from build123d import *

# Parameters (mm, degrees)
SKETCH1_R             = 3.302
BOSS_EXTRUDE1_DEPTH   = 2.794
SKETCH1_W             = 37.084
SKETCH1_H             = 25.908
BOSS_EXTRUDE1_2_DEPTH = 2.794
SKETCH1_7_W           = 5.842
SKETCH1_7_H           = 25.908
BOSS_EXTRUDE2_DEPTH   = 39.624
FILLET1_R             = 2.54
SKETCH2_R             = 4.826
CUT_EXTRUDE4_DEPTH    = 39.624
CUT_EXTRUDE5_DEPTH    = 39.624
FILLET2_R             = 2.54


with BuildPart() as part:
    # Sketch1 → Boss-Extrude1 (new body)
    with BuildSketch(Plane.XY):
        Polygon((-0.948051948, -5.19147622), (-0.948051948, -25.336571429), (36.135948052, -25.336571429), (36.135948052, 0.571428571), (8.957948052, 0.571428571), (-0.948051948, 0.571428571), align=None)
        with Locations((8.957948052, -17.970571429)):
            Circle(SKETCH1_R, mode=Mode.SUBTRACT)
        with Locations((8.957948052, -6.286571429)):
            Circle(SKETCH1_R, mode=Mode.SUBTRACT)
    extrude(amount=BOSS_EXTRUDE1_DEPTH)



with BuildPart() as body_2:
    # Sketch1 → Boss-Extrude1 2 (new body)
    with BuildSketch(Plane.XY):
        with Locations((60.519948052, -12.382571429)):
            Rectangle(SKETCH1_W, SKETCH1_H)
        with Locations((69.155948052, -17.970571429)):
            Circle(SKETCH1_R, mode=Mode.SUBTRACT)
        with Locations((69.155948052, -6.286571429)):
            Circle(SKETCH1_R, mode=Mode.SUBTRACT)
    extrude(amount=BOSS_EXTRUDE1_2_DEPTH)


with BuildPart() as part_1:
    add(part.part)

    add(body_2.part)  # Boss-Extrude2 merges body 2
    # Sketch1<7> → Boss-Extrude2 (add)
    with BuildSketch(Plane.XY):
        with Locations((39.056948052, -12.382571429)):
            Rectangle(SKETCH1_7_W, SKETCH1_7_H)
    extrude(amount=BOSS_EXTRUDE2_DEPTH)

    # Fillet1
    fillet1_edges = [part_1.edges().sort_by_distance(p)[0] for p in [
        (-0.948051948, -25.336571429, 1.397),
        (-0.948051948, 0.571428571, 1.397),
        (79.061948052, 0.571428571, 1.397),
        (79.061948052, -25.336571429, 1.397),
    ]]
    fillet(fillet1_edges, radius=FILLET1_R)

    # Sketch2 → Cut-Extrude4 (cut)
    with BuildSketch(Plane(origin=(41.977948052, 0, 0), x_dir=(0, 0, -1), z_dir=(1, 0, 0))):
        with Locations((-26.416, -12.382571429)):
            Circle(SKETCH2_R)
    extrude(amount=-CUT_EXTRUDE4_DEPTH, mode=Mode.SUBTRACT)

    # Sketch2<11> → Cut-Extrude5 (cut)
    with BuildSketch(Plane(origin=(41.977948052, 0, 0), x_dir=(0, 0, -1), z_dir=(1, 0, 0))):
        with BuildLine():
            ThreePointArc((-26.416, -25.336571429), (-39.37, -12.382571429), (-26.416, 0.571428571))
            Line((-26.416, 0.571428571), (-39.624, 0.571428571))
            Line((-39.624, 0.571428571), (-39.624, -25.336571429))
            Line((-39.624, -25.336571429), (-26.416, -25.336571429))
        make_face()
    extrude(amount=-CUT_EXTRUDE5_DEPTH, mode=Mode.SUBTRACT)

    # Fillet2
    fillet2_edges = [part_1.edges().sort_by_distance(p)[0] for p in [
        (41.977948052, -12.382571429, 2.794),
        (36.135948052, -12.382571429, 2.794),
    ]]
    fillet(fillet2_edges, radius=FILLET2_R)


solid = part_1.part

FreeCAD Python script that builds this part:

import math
import FreeCAD as App
import Part
import Sketcher
from FreeCAD import Vector
Q = App.Units.Quantity


def edges_at(feature, points):
    """Names of the edges that pass closest to the given points."""
    edges = feature.Shape.Edges
    near = lambda p: min(range(len(edges)), key=lambda i: edges[i].distToShape(Part.Vertex(*p))[0])
    return sorted({f"Edge{near(p) + 1}" for p in points})


def add_polygon(sketch, points):
    """Adds a closed chain of lines whose ends are joined by coincident constraints."""
    first, n = sketch.GeometryCount, len(points)
    for a, b in zip(points, points[1:] + points[:1]):
        sketch.addGeometry(Part.LineSegment(App.Vector(*a, 0), App.Vector(*b, 0)), False)
    for i in range(n):
        sketch.addConstraint(Sketcher.Constraint("Coincident", first + i, 2, first + (i + 1) % n, 1))

doc = App.newDocument("Part")
body = doc.addObject("PartDesign::Body", "Body")

sketch1 = body.newObject("Sketcher::SketchObject", "Sketch")
sketch1.AttachmentSupport = (doc.getObject("XY_Plane"), [""])
sketch1.MapMode = "FlatFace"
add_polygon(sketch1, [(-0.9, -25.3), (36.1, -25.3), (36.1, 0.6), (-0.9, 0.6)])
sketch1.addGeometry(Part.Circle(Vector(9, -18, 0), Vector(0, 0, 1), 3.3), False)
sketch1.addGeometry(Part.Circle(Vector(9, -6.3, 0), Vector(0, 0, 1), 3.3), False)
sketch1.addConstraint([
    Sketcher.Constraint("Horizontal", 0),
    Sketcher.Constraint("Vertical", 1),
    Sketcher.Constraint("Horizontal", 2),
    Sketcher.Constraint("Vertical", 3),
    Sketcher.Constraint("Equal", 4, 5),
    Sketcher.Constraint("Vertical", 4, 3, 5, 3),
    Sketcher.Constraint("Diameter", 4, Q("0.26 in")),
    Sketcher.Constraint("DistanceX", 0, 1, 0, 2, Q("1.46 in")),
    Sketcher.Constraint("DistanceY", 1, 1, 1, 2, Q("1.02 in")),
    Sketcher.Constraint("DistanceY", 4, 3, 5, 3, Q("0.46 in")),
    Sketcher.Constraint("DistanceX", 4, 3, 0, 2, Q("1.07 in")),
    Sketcher.Constraint("DistanceY", 0, 2, 4, 3, Q("0.29 in")),
    Sketcher.Constraint("DistanceX", -1, 1, 4, 3, 8.957948),
    Sketcher.Constraint("DistanceY", 4, 3, -1, 1, 17.970571),
])
pad1 = body.newObject("PartDesign::Pad", "Pad")
pad1.Profile = sketch1
pad1.Length = Q("0.11 in")
body2 = doc.addObject("PartDesign::Body", "Body001")

sketch2 = body2.newObject("Sketcher::SketchObject", "Sketch001")
sketch2.AttachmentSupport = (doc.getObject("XY_Plane001"), [""])
sketch2.MapMode = "FlatFace"
add_polygon(sketch2, [(42, 0.6), (42, -25.3), (79.1, -25.3), (79.1, 0.6)])
sketch2.addGeometry(Part.Circle(Vector(69.2, -18, 0), Vector(0, 0, 1), 3.3), False)
sketch2.addGeometry(Part.Circle(Vector(69.2, -6.3, 0), Vector(0, 0, 1), 3.3), False)
sketch2.addConstraint([
    Sketcher.Constraint("Vertical", 0),
    Sketcher.Constraint("Horizontal", 1),
    Sketcher.Constraint("Vertical", 2),
    Sketcher.Constraint("Horizontal", 3),
    Sketcher.Constraint("Equal", 4, 5),
    Sketcher.Constraint("Vertical", 4, 3, 5, 3),
    Sketcher.Constraint("Diameter", 4, Q("0.26 in")),
    Sketcher.Constraint("DistanceX", 1, 1, 1, 2, Q("1.46 in")),
    Sketcher.Constraint("DistanceY", 0, 2, 0, 1, Q("1.02 in")),
    Sketcher.Constraint("DistanceY", 4, 3, 5, 3, Q("0.46 in")),
    Sketcher.Constraint("DistanceX", 0, 2, 4, 3, Q("1.07 in")),
    Sketcher.Constraint("DistanceY", 0, 2, 4, 3, Q("0.29 in")),
    Sketcher.Constraint("DistanceX", -1, 1, 4, 3, 69.155948),
    Sketcher.Constraint("DistanceY", 4, 3, -1, 1, 17.970571),
])
pad2 = body2.newObject("PartDesign::Pad", "Pad001")
pad2.Profile = sketch2
pad2.Length = Q("0.11 in")
body.AllowCompound = True
doc.recompute()

boolean = body.newObject("PartDesign::Boolean", "Boolean")
boolean.Type = "Fuse"
boolean.addObjects([body2])

sketch3 = body.newObject("Sketcher::SketchObject", "Sketch002")
sketch3.AttachmentSupport = (doc.getObject("XY_Plane"), [""])
sketch3.MapMode = "FlatFace"
add_polygon(sketch3, [(36, 1), (36, -25), (42, -25), (42, 1)])
sketch3.addConstraint([
    Sketcher.Constraint("Vertical", 0),
    Sketcher.Constraint("Horizontal", 1),
    Sketcher.Constraint("Vertical", 2),
    Sketcher.Constraint("Horizontal", 3),
    Sketcher.Constraint("DistanceX", 1, 1, 1, 2, Q("0.23 in")),
    Sketcher.Constraint("DistanceY", 0, 2, 0, 1, Q("1.02 in")),
    Sketcher.Constraint("DistanceX", -1, 1, 0, 2, 36.135948),
    Sketcher.Constraint("DistanceY", 0, 2, -1, 1, 25.336571),
])
pad3 = body.newObject("PartDesign::Pad", "Pad002")
pad3.Profile = sketch3
pad3.Length = Q("1.56 in")
doc.recompute()

fillet = body.newObject("PartDesign::Fillet", "Fillet")
fillet.Base = (pad3, edges_at(pad3, [
    (-0.948, -25.337, 1.397),
    (-0.948, 0.571, 1.397),
    (79.062, 0.571, 1.397),
    (79.062, -25.337, 1.397),
]))
fillet.Radius = Q("0.1 in")

sketch4 = body.newObject("Sketcher::SketchObject", "Sketch003")
sketch4.AttachmentSupport = (doc.getObject("YZ_Plane"), [""])
sketch4.MapMode = "FlatFace"
sketch4.AttachmentOffset = App.Placement(Vector(0, 0, 41.977948), App.Rotation())
sketch4.addGeometry(Part.Circle(Vector(-12.4, 26.4, 0), Vector(0, 0, 1), 4.8), False)
sketch4.addConstraint([
    Sketcher.Constraint("Diameter", 0, Q("0.38 in")),
    Sketcher.Constraint("DistanceY", -1, 1, 0, 3, Q("1.04 in")),
    Sketcher.Constraint("DistanceX", 0, 3, -1, 1, 12.382571),
])
pocket1 = body.newObject("PartDesign::Pocket", "Pocket")
pocket1.Profile = sketch4
pocket1.Length = Q("1.56 in")

sketch5 = body.newObject("Sketcher::SketchObject", "Sketch004")
sketch5.AttachmentSupport = (doc.getObject("YZ_Plane"), [""])
sketch5.MapMode = "FlatFace"
sketch5.AttachmentOffset = App.Placement(Vector(0, 0, 41.977948), App.Rotation())
sketch5.addGeometry([
    Part.ArcOfCircle(Part.Circle(Vector(-12, 26, 0), Vector(0, 0, 1), 13), math.radians(0), math.radians(180)),
    Part.LineSegment(Vector(1, 26, 0), Vector(1, 40, 0)),
    Part.LineSegment(Vector(1, 40, 0), Vector(-25, 40, 0)),
    Part.LineSegment(Vector(-25, 40, 0), Vector(-25, 26, 0)),
], False)
sketch5.addConstraint([
    Sketcher.Constraint("Tangent", 0, 1, 1, 1),
    Sketcher.Constraint("Coincident", 1, 2, 2, 1),
    Sketcher.Constraint("Coincident", 2, 2, 3, 1),
    Sketcher.Constraint("Tangent", 3, 2, 0, 2),
    Sketcher.Constraint("Vertical", 1),
    Sketcher.Constraint("Horizontal", 2),
    Sketcher.Constraint("Vertical", 3),
    Sketcher.Constraint("Radius", 0, Q("0.51 in")),
    Sketcher.Constraint("DistanceY", 1, 1, 1, 2, Q("0.52 in")),
    Sketcher.Constraint("DistanceY", -1, 1, 0, 3, Q("1.04 in")),
    Sketcher.Constraint("DistanceX", 0, 3, -1, 1, 12.382571),
])
pocket2 = body.newObject("PartDesign::Pocket", "Pocket001")
pocket2.Profile = sketch5
pocket2.Length = Q("1.56 in")
doc.recompute()

fillet2 = body.newObject("PartDesign::Fillet", "Fillet001")
fillet2.Base = (pocket2, edges_at(pocket2, [(41.978, -12.383, 2.794), (36.136, -12.383, 2.794)]))
fillet2.Radius = Q("0.1 in")

doc.recompute()
